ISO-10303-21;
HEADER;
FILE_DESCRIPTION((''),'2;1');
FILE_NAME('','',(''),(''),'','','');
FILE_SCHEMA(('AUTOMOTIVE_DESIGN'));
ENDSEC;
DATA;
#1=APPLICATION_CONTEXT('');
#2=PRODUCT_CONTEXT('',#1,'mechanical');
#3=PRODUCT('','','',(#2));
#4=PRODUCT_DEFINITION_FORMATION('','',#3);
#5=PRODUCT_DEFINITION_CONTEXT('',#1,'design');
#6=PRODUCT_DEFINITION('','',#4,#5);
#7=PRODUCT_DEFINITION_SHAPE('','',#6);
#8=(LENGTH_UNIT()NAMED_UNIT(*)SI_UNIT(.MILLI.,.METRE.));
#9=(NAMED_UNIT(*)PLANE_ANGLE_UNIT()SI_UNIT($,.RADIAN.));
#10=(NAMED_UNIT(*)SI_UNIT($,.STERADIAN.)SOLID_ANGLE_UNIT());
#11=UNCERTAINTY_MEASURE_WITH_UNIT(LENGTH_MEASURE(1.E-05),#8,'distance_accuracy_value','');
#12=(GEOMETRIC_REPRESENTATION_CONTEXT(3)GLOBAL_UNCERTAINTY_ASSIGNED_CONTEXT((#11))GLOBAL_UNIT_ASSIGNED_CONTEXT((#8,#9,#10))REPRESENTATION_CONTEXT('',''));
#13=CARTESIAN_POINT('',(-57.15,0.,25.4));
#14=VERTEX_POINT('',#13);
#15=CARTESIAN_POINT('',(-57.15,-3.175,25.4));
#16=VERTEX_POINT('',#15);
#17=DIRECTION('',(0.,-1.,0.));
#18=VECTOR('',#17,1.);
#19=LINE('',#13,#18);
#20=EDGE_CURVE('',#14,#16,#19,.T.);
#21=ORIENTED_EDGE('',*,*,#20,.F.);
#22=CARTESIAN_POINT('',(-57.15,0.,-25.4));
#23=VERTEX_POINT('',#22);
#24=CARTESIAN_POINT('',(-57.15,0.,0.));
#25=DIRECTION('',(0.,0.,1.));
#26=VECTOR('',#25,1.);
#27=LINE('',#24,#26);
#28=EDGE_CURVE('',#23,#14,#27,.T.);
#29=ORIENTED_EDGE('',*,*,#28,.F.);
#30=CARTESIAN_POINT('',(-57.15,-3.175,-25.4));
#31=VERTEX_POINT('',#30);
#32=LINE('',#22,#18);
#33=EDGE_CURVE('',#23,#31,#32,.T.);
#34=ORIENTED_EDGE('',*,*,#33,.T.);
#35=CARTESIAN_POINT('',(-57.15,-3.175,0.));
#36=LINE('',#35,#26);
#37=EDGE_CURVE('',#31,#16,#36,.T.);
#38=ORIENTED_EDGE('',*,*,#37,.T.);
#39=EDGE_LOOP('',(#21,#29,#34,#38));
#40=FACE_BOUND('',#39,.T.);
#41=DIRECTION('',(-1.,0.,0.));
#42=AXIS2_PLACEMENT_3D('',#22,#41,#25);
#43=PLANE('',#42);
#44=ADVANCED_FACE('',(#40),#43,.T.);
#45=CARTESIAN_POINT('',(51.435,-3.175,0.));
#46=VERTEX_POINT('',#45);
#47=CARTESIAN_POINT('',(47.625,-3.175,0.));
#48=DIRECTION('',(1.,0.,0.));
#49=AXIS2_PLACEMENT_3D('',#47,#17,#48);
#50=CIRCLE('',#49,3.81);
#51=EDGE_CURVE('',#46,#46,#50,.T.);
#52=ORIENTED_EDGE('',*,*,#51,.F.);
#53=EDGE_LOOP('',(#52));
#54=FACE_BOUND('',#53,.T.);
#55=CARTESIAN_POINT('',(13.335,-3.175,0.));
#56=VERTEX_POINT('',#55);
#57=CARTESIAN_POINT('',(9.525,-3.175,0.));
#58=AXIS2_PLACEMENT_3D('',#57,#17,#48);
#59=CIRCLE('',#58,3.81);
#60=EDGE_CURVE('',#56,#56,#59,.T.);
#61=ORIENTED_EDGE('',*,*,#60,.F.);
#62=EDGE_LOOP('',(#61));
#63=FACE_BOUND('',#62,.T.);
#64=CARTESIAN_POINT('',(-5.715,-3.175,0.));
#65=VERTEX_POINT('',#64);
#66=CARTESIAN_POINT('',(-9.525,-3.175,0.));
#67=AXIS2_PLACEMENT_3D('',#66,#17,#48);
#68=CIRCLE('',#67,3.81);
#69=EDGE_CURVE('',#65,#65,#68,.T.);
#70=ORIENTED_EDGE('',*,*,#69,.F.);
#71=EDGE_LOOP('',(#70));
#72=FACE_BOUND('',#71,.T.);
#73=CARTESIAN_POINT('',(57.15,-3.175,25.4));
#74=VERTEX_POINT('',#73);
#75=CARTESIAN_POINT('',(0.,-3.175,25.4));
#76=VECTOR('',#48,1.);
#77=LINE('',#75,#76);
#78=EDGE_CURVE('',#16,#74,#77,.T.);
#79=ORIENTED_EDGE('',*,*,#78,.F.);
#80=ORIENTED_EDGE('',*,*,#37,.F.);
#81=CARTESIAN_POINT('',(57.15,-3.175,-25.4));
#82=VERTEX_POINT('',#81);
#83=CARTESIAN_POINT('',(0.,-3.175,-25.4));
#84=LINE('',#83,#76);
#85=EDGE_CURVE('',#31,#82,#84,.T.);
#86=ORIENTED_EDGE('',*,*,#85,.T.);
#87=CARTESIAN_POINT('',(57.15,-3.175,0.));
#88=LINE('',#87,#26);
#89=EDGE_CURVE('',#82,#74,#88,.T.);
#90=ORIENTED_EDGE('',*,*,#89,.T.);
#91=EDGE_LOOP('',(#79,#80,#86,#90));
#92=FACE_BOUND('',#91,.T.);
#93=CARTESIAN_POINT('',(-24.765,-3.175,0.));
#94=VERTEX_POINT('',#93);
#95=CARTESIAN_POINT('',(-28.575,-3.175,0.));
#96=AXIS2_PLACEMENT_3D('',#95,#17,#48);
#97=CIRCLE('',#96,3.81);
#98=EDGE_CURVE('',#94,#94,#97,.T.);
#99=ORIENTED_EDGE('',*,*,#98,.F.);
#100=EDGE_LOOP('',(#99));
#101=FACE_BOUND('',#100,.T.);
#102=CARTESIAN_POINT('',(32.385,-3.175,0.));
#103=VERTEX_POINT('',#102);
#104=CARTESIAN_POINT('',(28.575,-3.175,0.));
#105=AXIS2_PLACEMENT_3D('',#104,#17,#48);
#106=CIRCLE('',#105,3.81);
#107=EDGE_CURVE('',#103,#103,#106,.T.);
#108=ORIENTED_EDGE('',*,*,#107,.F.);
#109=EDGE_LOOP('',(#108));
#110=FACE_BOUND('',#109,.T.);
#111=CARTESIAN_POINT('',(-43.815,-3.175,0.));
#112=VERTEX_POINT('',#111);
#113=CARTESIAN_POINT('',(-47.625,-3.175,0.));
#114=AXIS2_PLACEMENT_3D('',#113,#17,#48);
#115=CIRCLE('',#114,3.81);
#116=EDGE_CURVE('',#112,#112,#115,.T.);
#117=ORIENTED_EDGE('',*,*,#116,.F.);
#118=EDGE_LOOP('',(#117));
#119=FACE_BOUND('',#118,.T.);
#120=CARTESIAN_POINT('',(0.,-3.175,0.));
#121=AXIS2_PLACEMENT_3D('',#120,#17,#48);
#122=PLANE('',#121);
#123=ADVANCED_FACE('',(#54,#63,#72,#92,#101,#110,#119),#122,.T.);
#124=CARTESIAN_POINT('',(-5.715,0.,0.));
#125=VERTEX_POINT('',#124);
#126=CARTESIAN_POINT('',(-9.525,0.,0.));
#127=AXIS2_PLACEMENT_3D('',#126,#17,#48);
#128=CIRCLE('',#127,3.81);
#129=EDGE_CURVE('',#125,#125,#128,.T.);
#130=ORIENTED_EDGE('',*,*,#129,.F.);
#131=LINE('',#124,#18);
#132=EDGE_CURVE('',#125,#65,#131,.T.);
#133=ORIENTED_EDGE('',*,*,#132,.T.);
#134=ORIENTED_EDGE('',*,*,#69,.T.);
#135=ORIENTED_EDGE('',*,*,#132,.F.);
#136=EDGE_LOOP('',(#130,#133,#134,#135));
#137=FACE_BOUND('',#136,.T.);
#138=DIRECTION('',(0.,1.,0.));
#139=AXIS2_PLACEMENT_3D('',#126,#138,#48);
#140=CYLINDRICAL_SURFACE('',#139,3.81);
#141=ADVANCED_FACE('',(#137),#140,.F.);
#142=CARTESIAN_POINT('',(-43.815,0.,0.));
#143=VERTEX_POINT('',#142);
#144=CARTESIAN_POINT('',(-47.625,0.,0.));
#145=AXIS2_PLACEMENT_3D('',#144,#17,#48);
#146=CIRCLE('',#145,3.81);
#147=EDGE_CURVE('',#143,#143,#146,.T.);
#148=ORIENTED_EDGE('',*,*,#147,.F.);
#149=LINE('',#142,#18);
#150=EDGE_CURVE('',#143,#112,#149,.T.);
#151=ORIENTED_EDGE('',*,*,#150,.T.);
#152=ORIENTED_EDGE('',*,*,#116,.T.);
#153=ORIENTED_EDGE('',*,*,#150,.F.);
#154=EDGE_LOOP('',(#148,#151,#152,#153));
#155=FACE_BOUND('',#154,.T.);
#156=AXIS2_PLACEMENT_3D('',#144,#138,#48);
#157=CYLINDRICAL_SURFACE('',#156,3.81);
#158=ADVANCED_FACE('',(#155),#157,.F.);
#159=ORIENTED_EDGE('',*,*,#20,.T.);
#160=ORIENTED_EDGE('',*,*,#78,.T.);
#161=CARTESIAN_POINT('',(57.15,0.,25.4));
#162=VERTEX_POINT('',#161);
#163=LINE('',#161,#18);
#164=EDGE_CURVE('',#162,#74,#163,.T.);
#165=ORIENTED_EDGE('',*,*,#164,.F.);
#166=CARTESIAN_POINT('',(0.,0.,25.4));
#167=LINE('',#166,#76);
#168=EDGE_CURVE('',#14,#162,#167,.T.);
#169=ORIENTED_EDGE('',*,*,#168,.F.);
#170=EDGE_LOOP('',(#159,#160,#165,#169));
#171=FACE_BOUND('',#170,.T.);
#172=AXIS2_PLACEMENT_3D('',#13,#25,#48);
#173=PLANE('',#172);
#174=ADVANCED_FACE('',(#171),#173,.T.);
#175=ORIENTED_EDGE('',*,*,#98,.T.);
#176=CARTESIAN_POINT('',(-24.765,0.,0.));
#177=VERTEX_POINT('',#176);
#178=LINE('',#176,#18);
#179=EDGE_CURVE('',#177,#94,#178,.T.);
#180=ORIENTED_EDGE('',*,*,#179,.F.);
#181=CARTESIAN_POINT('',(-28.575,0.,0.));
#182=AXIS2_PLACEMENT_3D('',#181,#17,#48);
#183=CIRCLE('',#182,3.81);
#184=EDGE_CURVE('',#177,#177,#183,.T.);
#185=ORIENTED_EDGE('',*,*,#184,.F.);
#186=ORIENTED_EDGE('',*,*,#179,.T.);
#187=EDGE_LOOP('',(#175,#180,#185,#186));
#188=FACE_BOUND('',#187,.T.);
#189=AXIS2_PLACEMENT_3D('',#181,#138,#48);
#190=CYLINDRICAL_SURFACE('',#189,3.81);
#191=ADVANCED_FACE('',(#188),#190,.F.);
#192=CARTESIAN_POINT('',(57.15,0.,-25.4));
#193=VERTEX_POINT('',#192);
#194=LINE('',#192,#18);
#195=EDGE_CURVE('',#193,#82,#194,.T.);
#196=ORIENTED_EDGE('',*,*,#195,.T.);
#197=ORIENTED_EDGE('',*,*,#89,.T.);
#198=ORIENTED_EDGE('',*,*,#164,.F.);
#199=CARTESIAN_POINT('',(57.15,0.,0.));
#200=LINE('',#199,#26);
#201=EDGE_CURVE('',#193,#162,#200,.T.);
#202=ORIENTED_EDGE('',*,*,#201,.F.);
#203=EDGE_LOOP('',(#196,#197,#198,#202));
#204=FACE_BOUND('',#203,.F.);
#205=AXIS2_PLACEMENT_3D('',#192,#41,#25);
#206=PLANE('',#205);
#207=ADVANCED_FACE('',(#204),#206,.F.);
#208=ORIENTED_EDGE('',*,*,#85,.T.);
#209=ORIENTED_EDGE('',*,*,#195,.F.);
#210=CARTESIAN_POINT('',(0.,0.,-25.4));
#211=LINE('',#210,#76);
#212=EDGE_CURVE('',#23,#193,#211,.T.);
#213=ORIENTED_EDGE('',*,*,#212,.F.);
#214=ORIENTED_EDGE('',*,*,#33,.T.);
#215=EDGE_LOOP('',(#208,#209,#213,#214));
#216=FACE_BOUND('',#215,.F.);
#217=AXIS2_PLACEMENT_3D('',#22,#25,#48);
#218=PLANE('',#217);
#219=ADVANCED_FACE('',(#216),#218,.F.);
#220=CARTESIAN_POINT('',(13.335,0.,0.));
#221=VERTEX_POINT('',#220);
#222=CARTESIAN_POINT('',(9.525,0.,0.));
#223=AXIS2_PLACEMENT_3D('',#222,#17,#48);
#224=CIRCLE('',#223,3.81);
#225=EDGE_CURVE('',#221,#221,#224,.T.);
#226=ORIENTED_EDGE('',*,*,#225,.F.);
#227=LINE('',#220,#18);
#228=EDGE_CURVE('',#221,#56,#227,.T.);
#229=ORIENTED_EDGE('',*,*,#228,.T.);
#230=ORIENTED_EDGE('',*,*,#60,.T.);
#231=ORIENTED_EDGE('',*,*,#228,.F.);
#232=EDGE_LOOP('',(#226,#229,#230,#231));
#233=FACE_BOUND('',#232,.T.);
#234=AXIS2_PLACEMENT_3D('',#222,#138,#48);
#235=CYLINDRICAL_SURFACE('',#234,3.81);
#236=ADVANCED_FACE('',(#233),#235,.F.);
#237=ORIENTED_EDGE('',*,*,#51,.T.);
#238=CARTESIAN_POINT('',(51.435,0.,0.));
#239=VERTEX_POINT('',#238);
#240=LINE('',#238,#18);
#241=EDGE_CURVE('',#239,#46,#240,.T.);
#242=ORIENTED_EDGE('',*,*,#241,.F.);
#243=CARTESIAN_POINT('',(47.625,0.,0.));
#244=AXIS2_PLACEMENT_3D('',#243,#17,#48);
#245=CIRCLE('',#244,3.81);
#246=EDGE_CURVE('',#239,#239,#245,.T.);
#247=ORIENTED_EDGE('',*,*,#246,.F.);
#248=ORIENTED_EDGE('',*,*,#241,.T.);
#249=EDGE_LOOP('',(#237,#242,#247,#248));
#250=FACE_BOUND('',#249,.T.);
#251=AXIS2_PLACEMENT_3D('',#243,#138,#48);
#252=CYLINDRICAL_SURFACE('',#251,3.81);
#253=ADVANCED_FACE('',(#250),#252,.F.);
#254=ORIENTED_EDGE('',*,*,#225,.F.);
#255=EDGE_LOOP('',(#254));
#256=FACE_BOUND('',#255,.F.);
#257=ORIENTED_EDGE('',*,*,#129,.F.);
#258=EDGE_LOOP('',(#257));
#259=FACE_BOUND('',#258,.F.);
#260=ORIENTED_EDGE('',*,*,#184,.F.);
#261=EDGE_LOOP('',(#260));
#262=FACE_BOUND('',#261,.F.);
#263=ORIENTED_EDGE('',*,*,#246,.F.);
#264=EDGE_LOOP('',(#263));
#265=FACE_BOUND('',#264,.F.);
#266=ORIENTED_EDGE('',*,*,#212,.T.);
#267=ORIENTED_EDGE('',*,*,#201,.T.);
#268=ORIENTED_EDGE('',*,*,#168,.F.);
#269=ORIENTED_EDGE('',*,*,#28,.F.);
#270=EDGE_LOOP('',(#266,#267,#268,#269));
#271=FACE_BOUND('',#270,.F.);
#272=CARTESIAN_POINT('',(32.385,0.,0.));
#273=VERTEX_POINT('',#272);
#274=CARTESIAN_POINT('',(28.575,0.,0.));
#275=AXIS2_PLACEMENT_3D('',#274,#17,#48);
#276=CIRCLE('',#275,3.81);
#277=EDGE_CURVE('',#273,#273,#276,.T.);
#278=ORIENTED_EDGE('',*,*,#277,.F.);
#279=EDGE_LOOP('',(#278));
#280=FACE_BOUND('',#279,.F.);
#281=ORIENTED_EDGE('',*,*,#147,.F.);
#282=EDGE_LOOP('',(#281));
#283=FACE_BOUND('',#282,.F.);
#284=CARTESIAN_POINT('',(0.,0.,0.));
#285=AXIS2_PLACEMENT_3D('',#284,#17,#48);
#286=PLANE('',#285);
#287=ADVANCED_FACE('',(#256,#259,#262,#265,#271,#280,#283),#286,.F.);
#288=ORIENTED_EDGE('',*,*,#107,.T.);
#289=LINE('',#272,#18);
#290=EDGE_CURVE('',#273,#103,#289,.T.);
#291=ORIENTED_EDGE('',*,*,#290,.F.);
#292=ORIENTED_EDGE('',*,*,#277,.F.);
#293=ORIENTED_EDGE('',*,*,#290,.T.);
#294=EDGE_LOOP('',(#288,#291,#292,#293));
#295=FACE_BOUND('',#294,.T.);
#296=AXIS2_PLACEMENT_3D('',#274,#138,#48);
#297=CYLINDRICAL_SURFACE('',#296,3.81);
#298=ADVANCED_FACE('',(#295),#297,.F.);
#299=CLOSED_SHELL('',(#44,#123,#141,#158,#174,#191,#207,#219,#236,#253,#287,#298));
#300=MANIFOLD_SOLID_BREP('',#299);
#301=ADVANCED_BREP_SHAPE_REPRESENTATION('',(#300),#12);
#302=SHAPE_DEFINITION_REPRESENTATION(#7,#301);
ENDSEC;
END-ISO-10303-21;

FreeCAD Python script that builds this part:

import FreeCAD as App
import Part
import Sketcher
from FreeCAD import Vector
Q = App.Units.Quantity

doc = App.newDocument("Part")
body = doc.addObject("PartDesign::Body", "Body")

# Sketch on XZ plane
sketch1 = body.newObject("Sketcher::SketchObject", "Sketch")
sketch1.AttachmentSupport = (doc.getObject("XZ_Plane"), [""])
sketch1.MapMode = "FlatFace"
sketch1.addGeometry([
    Part.LineSegment(Vector(-57.1, 25.4, 0), Vector(-57.1, -25.4, 0)),  # 0
    Part.LineSegment(Vector(-57.1, -25.4, 0), Vector(57.1, -25.4, 0)),  # 1
    Part.LineSegment(Vector(57.1, -25.4, 0), Vector(57.1, 25.4, 0)),  # 2
    Part.LineSegment(Vector(57.1, 25.4, 0), Vector(-57.1, 25.4, 0)),  # 3
    Part.Circle(Vector(-47.6, 0, 0), Vector(0, 0, 1), 3.8),  # 4
    Part.Circle(Vector(-28.6, 0, 0), Vector(0, 0, 1), 3.8),  # 5
    Part.Circle(Vector(-9.5, 0, 0), Vector(0, 0, 1), 3.8),  # 6
    Part.Circle(Vector(9.5, 0, 0), Vector(0, 0, 1), 3.8),  # 7
    Part.Circle(Vector(28.6, 0, 0), Vector(0, 0, 1), 3.8),  # 8
    Part.Circle(Vector(47.6, 0, 0), Vector(0, 0, 1), 3.8),  # 9
], False)
sketch1.addConstraint([
    Sketcher.Constraint("Coincident", 0, 2, 1, 1),
    Sketcher.Constraint("Coincident", 1, 2, 2, 1),
    Sketcher.Constraint("Coincident", 2, 2, 3, 1),
    Sketcher.Constraint("Coincident", 3, 2, 0, 1),
    Sketcher.Constraint("Vertical", 0),
    Sketcher.Constraint("Horizontal", 1),
    Sketcher.Constraint("Vertical", 2),
    Sketcher.Constraint("Horizontal", 3),
    Sketcher.Constraint("Equal", 4, 5),
    Sketcher.Constraint("Equal", 5, 6),
    Sketcher.Constraint("Equal", 6, 7),
    Sketcher.Constraint("Equal", 7, 8),
    Sketcher.Constraint("Equal", 8, 9),
    Sketcher.Constraint("Symmetric", 6, 3, 7, 3, -1, 1),
    Sketcher.Constraint("Symmetric", 5, 3, 8, 3, -1, 1),
    Sketcher.Constraint("Symmetric", 4, 3, 9, 3, -1, 1),
    Sketcher.Constraint("Symmetric", 0, 2, 2, 2, -1, 1),
    Sketcher.Constraint("PointOnObject", 4, 3, -1),
    Sketcher.Constraint("PointOnObject", 5, 3, -1),
    Sketcher.Constraint("PointOnObject", 6, 3, -1),
    Sketcher.Constraint("Diameter", 4, Q("0.3 in")),
    Sketcher.Constraint("DistanceY", 0, 2, 0, 1, Q("2 in")),
    Sketcher.Constraint("DistanceX", 1, 1, 1, 2, Q("4.5 in")),
    Sketcher.Constraint("DistanceX", 4, 3, 8, 3, Q("3 in")),
    Sketcher.Constraint("DistanceX", 4, 3, 6, 3, Q("1.5 in")),
    Sketcher.Constraint("DistanceX", 4, 3, 5, 3, Q("0.75 in")),
])
pad1 = body.newObject("PartDesign::Pad", "Pad")
pad1.Profile = sketch1
pad1.Length = Q("0.125 in")

doc.recompute()
